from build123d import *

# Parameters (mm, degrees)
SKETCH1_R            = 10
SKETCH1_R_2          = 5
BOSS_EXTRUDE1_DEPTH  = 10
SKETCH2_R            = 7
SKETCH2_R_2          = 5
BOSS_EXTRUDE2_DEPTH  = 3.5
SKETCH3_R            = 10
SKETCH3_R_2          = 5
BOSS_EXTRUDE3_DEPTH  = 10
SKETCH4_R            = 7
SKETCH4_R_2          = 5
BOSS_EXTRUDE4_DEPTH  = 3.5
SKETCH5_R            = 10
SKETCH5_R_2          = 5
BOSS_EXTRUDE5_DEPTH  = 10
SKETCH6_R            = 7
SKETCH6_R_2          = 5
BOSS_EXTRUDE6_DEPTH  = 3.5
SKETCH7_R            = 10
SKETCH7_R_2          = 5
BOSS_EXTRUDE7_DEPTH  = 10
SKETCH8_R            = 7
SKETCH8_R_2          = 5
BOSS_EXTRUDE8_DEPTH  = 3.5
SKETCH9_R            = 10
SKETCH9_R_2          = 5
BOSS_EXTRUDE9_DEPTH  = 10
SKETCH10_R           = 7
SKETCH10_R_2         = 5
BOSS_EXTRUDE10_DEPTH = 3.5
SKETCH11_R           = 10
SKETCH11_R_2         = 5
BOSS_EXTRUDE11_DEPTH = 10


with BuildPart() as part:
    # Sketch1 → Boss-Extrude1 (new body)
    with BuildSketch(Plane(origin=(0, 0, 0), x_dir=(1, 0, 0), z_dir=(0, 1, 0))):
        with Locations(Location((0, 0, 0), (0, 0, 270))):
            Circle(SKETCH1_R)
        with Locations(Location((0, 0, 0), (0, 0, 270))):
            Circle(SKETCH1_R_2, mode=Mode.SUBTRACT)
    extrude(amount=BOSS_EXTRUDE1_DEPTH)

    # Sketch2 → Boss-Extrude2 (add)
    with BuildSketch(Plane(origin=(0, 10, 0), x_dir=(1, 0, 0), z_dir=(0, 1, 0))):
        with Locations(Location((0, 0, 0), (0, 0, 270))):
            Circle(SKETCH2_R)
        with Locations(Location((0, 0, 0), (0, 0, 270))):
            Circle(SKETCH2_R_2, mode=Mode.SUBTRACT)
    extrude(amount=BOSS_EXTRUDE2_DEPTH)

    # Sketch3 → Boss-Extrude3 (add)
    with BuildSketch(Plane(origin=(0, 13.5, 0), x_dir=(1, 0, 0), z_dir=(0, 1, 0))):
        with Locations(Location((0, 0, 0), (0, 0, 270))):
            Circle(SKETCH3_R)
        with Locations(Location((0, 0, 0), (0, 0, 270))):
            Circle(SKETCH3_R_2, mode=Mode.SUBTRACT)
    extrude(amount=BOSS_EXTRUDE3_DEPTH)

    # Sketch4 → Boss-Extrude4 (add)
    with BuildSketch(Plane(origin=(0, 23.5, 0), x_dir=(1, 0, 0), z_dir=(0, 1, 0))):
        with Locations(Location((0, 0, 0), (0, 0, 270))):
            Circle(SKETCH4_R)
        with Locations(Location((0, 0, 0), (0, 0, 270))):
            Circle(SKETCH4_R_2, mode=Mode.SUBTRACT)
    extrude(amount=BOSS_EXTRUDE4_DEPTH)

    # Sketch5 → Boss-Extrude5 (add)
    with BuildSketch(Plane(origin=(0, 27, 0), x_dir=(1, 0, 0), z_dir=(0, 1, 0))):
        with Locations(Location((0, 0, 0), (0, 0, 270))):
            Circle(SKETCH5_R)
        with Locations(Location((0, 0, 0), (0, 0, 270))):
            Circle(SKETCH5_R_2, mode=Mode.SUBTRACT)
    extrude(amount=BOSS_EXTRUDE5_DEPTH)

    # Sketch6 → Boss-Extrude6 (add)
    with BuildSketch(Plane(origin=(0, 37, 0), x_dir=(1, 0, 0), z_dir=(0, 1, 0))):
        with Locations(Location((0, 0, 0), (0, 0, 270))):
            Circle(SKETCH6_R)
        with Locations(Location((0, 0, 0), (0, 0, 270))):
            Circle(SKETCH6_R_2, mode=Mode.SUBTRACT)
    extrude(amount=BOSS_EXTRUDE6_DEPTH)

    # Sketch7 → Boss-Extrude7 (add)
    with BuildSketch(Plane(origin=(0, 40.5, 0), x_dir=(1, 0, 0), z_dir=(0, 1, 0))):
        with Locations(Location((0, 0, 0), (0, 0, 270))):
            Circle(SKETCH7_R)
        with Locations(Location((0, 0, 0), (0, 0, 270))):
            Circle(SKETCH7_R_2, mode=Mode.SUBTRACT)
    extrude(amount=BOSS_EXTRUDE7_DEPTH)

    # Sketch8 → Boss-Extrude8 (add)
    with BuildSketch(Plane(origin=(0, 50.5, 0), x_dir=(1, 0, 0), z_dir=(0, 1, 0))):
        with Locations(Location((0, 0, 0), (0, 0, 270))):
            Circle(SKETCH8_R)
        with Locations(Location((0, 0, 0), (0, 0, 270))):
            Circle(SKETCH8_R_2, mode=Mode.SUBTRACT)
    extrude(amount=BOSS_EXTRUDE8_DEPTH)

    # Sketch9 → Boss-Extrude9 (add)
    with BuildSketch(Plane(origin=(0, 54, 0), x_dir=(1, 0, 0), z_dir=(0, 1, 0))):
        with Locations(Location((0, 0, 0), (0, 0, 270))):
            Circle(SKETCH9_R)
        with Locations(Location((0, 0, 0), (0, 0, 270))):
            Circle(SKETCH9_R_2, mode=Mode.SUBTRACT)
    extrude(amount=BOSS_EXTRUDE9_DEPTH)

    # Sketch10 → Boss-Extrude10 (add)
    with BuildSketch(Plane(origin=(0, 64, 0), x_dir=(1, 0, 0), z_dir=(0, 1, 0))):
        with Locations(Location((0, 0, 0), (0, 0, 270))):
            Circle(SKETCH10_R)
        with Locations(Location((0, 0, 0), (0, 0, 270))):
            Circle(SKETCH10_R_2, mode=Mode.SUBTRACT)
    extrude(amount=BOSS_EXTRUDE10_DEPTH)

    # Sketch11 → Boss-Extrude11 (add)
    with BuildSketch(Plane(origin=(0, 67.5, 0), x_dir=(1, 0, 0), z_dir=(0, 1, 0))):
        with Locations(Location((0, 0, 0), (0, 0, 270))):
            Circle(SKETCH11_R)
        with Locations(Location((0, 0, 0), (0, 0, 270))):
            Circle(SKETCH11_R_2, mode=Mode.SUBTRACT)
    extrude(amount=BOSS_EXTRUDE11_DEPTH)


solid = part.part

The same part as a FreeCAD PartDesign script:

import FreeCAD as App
import Part
import Sketcher

doc = App.newDocument("Part")
body = doc.addObject("PartDesign::Body", "Body")

# Sketch on XZ plane
sketch1 = doc.addObject("Sketcher::SketchObject", "Sketch")
body.addObject(sketch1)
sketch1.AttachmentSupport = (doc.XZ_Plane, [""])
sketch1.MapMode = "FlatFace"
sketch1.addGeometry([
    Part.Circle(App.Vector(0, 0, 0), App.Vector(0, 0, 1), 10),
    Part.Circle(App.Vector(0, 0, 0), App.Vector(0, 0, 1), 5),
], False)
sketch1.addConstraint([
    Sketcher.Constraint("Coincident", 0, 3, -1, 1),
    Sketcher.Constraint("Coincident", 1, 3, -1, 1),
    Sketcher.Constraint("Diameter", 0, 20.0),
    Sketcher.Constraint("Diameter", 1, 10.0),
])
pad1 = doc.addObject("PartDesign::Pad", "Pad")
body.addObject(pad1)
pad1.Profile = sketch1
pad1.Length = 10
pad1.Reversed = True

# Sketch on XZ plane
sketch2 = doc.addObject("Sketcher::SketchObject", "Sketch001")
body.addObject(sketch2)
sketch2.AttachmentSupport = (doc.XZ_Plane, [""])
sketch2.MapMode = "FlatFace"
sketch2.AttachmentOffset = App.Placement(App.Vector(0, 0, -10), App.Rotation())
sketch2.addGeometry([
    Part.Circle(App.Vector(0, 0, 0), App.Vector(0, 0, 1), 7),
    Part.Circle(App.Vector(0, 0, 0), App.Vector(0, 0, 1), 5),
], False)
sketch2.addConstraint([
    Sketcher.Constraint("Coincident", 0, 3, -1, 1),
    Sketcher.Constraint("Coincident", 1, 3, -1, 1),
    Sketcher.Constraint("Diameter", 0, 14.0),
    Sketcher.Constraint("Diameter", 1, 10.0),
])
pad2 = doc.addObject("PartDesign::Pad", "Pad001")
body.addObject(pad2)
pad2.Profile = sketch2
pad2.Length = 3.5
pad2.Reversed = True

# Sketch on XZ plane
sketch3 = doc.addObject("Sketcher::SketchObject", "Sketch002")
body.addObject(sketch3)
sketch3.AttachmentSupport = (doc.XZ_Plane, [""])
sketch3.MapMode = "FlatFace"
sketch3.AttachmentOffset = App.Placement(App.Vector(0, 0, -13.5), App.Rotation())
sketch3.addGeometry([
    Part.Circle(App.Vector(0, 0, 0), App.Vector(0, 0, 1), 10),
    Part.Circle(App.Vector(0, 0, 0), App.Vector(0, 0, 1), 5),
], False)
sketch3.addConstraint([
    Sketcher.Constraint("Coincident", 0, 3, -1, 1),
    Sketcher.Constraint("Coincident", 1, 3, -1, 1),
    Sketcher.Constraint("Diameter", 0, 20.0),
    Sketcher.Constraint("Diameter", 1, 10.0),
])
pad3 = doc.addObject("PartDesign::Pad", "Pad002")
body.addObject(pad3)
pad3.Profile = sketch3
pad3.Length = 10
pad3.Reversed = True

# Sketch on XZ plane
sketch4 = doc.addObject("Sketcher::SketchObject", "Sketch003")
body.addObject(sketch4)
sketch4.AttachmentSupport = (doc.XZ_Plane, [""])
sketch4.MapMode = "FlatFace"
sketch4.AttachmentOffset = App.Placement(App.Vector(0, 0, -23.5), App.Rotation())
sketch4.addGeometry([
    Part.Circle(App.Vector(0, 0, 0), App.Vector(0, 0, 1), 7),
    Part.Circle(App.Vector(0, 0, 0), App.Vector(0, 0, 1), 5),
], False)
sketch4.addConstraint([
    Sketcher.Constraint("Coincident", 0, 3, -1, 1),
    Sketcher.Constraint("Coincident", 1, 3, -1, 1),
    Sketcher.Constraint("Diameter", 0, 14.0),
    Sketcher.Constraint("Diameter", 1, 10.0),
])
pad4 = doc.addObject("PartDesign::Pad", "Pad003")
body.addObject(pad4)
pad4.Profile = sketch4
pad4.Length = 3.5
pad4.Reversed = True

# Sketch on XZ plane
sketch5 = doc.addObject("Sketcher::SketchObject", "Sketch004")
body.addObject(sketch5)
sketch5.AttachmentSupport = (doc.XZ_Plane, [""])
sketch5.MapMode = "FlatFace"
sketch5.AttachmentOffset = App.Placement(App.Vector(0, 0, -27), App.Rotation())
sketch5.addGeometry([
    Part.Circle(App.Vector(0, 0, 0), App.Vector(0, 0, 1), 10),
    Part.Circle(App.Vector(0, 0, 0), App.Vector(0, 0, 1), 5),
], False)
sketch5.addConstraint([
    Sketcher.Constraint("Coincident", 0, 3, -1, 1),
    Sketcher.Constraint("Coincident", 1, 3, -1, 1),
    Sketcher.Constraint("Diameter", 0, 20.0),
    Sketcher.Constraint("Diameter", 1, 10.0),
])
pad5 = doc.addObject("PartDesign::Pad", "Pad004")
body.addObject(pad5)
pad5.Profile = sketch5
pad5.Length = 10
pad5.Reversed = True

# Sketch on XZ plane
sketch6 = doc.addObject("Sketcher::SketchObject", "Sketch005")
body.addObject(sketch6)
sketch6.AttachmentSupport = (doc.XZ_Plane, [""])
sketch6.MapMode = "FlatFace"
sketch6.AttachmentOffset = App.Placement(App.Vector(0, 0, -37), App.Rotation())
sketch6.addGeometry([
    Part.Circle(App.Vector(0, 0, 0), App.Vector(0, 0, 1), 7),
    Part.Circle(App.Vector(0, 0, 0), App.Vector(0, 0, 1), 5),
], False)
sketch6.addConstraint([
    Sketcher.Constraint("Coincident", 0, 3, -1, 1),
    Sketcher.Constraint("Coincident", 1, 3, -1, 1),
    Sketcher.Constraint("Diameter", 0, 14.0),
    Sketcher.Constraint("Diameter", 1, 10.0),
])
pad6 = doc.addObject("PartDesign::Pad", "Pad005")
body.addObject(pad6)
pad6.Profile = sketch6
pad6.Length = 3.5
pad6.Reversed = True

# Sketch on XZ plane
sketch7 = doc.addObject("Sketcher::SketchObject", "Sketch006")
body.addObject(sketch7)
sketch7.AttachmentSupport = (doc.XZ_Plane, [""])
sketch7.MapMode = "FlatFace"
sketch7.AttachmentOffset = App.Placement(App.Vector(0, 0, -40.5), App.Rotation())
sketch7.addGeometry([
    Part.Circle(App.Vector(0, 0, 0), App.Vector(0, 0, 1), 10),
    Part.Circle(App.Vector(0, 0, 0), App.Vector(0, 0, 1), 5),
], False)
sketch7.addConstraint([
    Sketcher.Constraint("Coincident", 0, 3, -1, 1),
    Sketcher.Constraint("Coincident", 1, 3, -1, 1),
    Sketcher.Constraint("Diameter", 0, 20.0),
    Sketcher.Constraint("Diameter", 1, 10.0),
])
pad7 = doc.addObject("PartDesign::Pad", "Pad006")
body.addObject(pad7)
pad7.Profile = sketch7
pad7.Length = 10
pad7.Reversed = True

# Sketch on XZ plane
sketch8 = doc.addObject("Sketcher::SketchObject", "Sketch007")
body.addObject(sketch8)
sketch8.AttachmentSupport = (doc.XZ_Plane, [""])
sketch8.MapMode = "FlatFace"
sketch8.AttachmentOffset = App.Placement(App.Vector(0, 0, -50.5), App.Rotation())
sketch8.addGeometry([
    Part.Circle(App.Vector(0, 0, 0), App.Vector(0, 0, 1), 7),
    Part.Circle(App.Vector(0, 0, 0), App.Vector(0, 0, 1), 5),
], False)
sketch8.addConstraint([
    Sketcher.Constraint("Coincident", 0, 3, -1, 1),
    Sketcher.Constraint("Coincident", 1, 3, -1, 1),
    Sketcher.Constraint("Diameter", 0, 14.0),
    Sketcher.Constraint("Diameter", 1, 10.0),
])
pad8 = doc.addObject("PartDesign::Pad", "Pad007")
body.addObject(pad8)
pad8.Profile = sketch8
pad8.Length = 3.5
pad8.Reversed = True

# Sketch on XZ plane
sketch9 = doc.addObject("Sketcher::SketchObject", "Sketch008")
body.addObject(sketch9)
sketch9.AttachmentSupport = (doc.XZ_Plane, [""])
sketch9.MapMode = "FlatFace"
sketch9.AttachmentOffset = App.Placement(App.Vector(0, 0, -54), App.Rotation())
sketch9.addGeometry([
    Part.Circle(App.Vector(0, 0, 0), App.Vector(0, 0, 1), 10),
    Part.Circle(App.Vector(0, 0, 0), App.Vector(0, 0, 1), 5),
], False)
sketch9.addConstraint([
    Sketcher.Constraint("Coincident", 0, 3, -1, 1),
    Sketcher.Constraint("Coincident", 1, 3, -1, 1),
    Sketcher.Constraint("Diameter", 0, 20.0),
    Sketcher.Constraint("Diameter", 1, 10.0),
])
pad9 = doc.addObject("PartDesign::Pad", "Pad008")
body.addObject(pad9)
pad9.Profile = sketch9
pad9.Length = 10
pad9.Reversed = True

# Sketch on XZ plane
sketch10 = doc.addObject("Sketcher::SketchObject", "Sketch009")
body.addObject(sketch10)
sketch10.AttachmentSupport = (doc.XZ_Plane, [""])
sketch10.MapMode = "FlatFace"
sketch10.AttachmentOffset = App.Placement(App.Vector(0, 0, -64), App.Rotation())
sketch10.addGeometry([
    Part.Circle(App.Vector(0, 0, 0), App.Vector(0, 0, 1), 7),
    Part.Circle(App.Vector(0, 0, 0), App.Vector(0, 0, 1), 5),
], False)
sketch10.addConstraint([
    Sketcher.Constraint("Coincident", 0, 3, -1, 1),
    Sketcher.Constraint("Coincident", 1, 3, -1, 1),
    Sketcher.Constraint("Diameter", 0, 14.0),
    Sketcher.Constraint("Diameter", 1, 10.0),
])
pad10 = doc.addObject("PartDesign::Pad", "Pad009")
body.addObject(pad10)
pad10.Profile = sketch10
pad10.Length = 3.5
pad10.Reversed = True

# Sketch on XZ plane
sketch11 = doc.addObject("Sketcher::SketchObject", "Sketch010")
body.addObject(sketch11)
sketch11.AttachmentSupport = (doc.XZ_Plane, [""])
sketch11.MapMode = "FlatFace"
sketch11.AttachmentOffset = App.Placement(App.Vector(0, 0, -67.5), App.Rotation())
sketch11.addGeometry([
    Part.Circle(App.Vector(0, 0, 0), App.Vector(0, 0, 1), 10),
    Part.Circle(App.Vector(0, 0, 0), App.Vector(0, 0, 1), 5),
], False)
sketch11.addConstraint([
    Sketcher.Constraint("Coincident", 0, 3, -1, 1),
    Sketcher.Constraint("Coincident", 1, 3, -1, 1),
    Sketcher.Constraint("Diameter", 0, 20.0),
    Sketcher.Constraint("Diameter", 1, 10.0),
])
pad11 = doc.addObject("PartDesign::Pad", "Pad010")
body.addObject(pad11)
pad11.Profile = sketch11
pad11.Length = 10
pad11.Reversed = True

doc.recompute()
